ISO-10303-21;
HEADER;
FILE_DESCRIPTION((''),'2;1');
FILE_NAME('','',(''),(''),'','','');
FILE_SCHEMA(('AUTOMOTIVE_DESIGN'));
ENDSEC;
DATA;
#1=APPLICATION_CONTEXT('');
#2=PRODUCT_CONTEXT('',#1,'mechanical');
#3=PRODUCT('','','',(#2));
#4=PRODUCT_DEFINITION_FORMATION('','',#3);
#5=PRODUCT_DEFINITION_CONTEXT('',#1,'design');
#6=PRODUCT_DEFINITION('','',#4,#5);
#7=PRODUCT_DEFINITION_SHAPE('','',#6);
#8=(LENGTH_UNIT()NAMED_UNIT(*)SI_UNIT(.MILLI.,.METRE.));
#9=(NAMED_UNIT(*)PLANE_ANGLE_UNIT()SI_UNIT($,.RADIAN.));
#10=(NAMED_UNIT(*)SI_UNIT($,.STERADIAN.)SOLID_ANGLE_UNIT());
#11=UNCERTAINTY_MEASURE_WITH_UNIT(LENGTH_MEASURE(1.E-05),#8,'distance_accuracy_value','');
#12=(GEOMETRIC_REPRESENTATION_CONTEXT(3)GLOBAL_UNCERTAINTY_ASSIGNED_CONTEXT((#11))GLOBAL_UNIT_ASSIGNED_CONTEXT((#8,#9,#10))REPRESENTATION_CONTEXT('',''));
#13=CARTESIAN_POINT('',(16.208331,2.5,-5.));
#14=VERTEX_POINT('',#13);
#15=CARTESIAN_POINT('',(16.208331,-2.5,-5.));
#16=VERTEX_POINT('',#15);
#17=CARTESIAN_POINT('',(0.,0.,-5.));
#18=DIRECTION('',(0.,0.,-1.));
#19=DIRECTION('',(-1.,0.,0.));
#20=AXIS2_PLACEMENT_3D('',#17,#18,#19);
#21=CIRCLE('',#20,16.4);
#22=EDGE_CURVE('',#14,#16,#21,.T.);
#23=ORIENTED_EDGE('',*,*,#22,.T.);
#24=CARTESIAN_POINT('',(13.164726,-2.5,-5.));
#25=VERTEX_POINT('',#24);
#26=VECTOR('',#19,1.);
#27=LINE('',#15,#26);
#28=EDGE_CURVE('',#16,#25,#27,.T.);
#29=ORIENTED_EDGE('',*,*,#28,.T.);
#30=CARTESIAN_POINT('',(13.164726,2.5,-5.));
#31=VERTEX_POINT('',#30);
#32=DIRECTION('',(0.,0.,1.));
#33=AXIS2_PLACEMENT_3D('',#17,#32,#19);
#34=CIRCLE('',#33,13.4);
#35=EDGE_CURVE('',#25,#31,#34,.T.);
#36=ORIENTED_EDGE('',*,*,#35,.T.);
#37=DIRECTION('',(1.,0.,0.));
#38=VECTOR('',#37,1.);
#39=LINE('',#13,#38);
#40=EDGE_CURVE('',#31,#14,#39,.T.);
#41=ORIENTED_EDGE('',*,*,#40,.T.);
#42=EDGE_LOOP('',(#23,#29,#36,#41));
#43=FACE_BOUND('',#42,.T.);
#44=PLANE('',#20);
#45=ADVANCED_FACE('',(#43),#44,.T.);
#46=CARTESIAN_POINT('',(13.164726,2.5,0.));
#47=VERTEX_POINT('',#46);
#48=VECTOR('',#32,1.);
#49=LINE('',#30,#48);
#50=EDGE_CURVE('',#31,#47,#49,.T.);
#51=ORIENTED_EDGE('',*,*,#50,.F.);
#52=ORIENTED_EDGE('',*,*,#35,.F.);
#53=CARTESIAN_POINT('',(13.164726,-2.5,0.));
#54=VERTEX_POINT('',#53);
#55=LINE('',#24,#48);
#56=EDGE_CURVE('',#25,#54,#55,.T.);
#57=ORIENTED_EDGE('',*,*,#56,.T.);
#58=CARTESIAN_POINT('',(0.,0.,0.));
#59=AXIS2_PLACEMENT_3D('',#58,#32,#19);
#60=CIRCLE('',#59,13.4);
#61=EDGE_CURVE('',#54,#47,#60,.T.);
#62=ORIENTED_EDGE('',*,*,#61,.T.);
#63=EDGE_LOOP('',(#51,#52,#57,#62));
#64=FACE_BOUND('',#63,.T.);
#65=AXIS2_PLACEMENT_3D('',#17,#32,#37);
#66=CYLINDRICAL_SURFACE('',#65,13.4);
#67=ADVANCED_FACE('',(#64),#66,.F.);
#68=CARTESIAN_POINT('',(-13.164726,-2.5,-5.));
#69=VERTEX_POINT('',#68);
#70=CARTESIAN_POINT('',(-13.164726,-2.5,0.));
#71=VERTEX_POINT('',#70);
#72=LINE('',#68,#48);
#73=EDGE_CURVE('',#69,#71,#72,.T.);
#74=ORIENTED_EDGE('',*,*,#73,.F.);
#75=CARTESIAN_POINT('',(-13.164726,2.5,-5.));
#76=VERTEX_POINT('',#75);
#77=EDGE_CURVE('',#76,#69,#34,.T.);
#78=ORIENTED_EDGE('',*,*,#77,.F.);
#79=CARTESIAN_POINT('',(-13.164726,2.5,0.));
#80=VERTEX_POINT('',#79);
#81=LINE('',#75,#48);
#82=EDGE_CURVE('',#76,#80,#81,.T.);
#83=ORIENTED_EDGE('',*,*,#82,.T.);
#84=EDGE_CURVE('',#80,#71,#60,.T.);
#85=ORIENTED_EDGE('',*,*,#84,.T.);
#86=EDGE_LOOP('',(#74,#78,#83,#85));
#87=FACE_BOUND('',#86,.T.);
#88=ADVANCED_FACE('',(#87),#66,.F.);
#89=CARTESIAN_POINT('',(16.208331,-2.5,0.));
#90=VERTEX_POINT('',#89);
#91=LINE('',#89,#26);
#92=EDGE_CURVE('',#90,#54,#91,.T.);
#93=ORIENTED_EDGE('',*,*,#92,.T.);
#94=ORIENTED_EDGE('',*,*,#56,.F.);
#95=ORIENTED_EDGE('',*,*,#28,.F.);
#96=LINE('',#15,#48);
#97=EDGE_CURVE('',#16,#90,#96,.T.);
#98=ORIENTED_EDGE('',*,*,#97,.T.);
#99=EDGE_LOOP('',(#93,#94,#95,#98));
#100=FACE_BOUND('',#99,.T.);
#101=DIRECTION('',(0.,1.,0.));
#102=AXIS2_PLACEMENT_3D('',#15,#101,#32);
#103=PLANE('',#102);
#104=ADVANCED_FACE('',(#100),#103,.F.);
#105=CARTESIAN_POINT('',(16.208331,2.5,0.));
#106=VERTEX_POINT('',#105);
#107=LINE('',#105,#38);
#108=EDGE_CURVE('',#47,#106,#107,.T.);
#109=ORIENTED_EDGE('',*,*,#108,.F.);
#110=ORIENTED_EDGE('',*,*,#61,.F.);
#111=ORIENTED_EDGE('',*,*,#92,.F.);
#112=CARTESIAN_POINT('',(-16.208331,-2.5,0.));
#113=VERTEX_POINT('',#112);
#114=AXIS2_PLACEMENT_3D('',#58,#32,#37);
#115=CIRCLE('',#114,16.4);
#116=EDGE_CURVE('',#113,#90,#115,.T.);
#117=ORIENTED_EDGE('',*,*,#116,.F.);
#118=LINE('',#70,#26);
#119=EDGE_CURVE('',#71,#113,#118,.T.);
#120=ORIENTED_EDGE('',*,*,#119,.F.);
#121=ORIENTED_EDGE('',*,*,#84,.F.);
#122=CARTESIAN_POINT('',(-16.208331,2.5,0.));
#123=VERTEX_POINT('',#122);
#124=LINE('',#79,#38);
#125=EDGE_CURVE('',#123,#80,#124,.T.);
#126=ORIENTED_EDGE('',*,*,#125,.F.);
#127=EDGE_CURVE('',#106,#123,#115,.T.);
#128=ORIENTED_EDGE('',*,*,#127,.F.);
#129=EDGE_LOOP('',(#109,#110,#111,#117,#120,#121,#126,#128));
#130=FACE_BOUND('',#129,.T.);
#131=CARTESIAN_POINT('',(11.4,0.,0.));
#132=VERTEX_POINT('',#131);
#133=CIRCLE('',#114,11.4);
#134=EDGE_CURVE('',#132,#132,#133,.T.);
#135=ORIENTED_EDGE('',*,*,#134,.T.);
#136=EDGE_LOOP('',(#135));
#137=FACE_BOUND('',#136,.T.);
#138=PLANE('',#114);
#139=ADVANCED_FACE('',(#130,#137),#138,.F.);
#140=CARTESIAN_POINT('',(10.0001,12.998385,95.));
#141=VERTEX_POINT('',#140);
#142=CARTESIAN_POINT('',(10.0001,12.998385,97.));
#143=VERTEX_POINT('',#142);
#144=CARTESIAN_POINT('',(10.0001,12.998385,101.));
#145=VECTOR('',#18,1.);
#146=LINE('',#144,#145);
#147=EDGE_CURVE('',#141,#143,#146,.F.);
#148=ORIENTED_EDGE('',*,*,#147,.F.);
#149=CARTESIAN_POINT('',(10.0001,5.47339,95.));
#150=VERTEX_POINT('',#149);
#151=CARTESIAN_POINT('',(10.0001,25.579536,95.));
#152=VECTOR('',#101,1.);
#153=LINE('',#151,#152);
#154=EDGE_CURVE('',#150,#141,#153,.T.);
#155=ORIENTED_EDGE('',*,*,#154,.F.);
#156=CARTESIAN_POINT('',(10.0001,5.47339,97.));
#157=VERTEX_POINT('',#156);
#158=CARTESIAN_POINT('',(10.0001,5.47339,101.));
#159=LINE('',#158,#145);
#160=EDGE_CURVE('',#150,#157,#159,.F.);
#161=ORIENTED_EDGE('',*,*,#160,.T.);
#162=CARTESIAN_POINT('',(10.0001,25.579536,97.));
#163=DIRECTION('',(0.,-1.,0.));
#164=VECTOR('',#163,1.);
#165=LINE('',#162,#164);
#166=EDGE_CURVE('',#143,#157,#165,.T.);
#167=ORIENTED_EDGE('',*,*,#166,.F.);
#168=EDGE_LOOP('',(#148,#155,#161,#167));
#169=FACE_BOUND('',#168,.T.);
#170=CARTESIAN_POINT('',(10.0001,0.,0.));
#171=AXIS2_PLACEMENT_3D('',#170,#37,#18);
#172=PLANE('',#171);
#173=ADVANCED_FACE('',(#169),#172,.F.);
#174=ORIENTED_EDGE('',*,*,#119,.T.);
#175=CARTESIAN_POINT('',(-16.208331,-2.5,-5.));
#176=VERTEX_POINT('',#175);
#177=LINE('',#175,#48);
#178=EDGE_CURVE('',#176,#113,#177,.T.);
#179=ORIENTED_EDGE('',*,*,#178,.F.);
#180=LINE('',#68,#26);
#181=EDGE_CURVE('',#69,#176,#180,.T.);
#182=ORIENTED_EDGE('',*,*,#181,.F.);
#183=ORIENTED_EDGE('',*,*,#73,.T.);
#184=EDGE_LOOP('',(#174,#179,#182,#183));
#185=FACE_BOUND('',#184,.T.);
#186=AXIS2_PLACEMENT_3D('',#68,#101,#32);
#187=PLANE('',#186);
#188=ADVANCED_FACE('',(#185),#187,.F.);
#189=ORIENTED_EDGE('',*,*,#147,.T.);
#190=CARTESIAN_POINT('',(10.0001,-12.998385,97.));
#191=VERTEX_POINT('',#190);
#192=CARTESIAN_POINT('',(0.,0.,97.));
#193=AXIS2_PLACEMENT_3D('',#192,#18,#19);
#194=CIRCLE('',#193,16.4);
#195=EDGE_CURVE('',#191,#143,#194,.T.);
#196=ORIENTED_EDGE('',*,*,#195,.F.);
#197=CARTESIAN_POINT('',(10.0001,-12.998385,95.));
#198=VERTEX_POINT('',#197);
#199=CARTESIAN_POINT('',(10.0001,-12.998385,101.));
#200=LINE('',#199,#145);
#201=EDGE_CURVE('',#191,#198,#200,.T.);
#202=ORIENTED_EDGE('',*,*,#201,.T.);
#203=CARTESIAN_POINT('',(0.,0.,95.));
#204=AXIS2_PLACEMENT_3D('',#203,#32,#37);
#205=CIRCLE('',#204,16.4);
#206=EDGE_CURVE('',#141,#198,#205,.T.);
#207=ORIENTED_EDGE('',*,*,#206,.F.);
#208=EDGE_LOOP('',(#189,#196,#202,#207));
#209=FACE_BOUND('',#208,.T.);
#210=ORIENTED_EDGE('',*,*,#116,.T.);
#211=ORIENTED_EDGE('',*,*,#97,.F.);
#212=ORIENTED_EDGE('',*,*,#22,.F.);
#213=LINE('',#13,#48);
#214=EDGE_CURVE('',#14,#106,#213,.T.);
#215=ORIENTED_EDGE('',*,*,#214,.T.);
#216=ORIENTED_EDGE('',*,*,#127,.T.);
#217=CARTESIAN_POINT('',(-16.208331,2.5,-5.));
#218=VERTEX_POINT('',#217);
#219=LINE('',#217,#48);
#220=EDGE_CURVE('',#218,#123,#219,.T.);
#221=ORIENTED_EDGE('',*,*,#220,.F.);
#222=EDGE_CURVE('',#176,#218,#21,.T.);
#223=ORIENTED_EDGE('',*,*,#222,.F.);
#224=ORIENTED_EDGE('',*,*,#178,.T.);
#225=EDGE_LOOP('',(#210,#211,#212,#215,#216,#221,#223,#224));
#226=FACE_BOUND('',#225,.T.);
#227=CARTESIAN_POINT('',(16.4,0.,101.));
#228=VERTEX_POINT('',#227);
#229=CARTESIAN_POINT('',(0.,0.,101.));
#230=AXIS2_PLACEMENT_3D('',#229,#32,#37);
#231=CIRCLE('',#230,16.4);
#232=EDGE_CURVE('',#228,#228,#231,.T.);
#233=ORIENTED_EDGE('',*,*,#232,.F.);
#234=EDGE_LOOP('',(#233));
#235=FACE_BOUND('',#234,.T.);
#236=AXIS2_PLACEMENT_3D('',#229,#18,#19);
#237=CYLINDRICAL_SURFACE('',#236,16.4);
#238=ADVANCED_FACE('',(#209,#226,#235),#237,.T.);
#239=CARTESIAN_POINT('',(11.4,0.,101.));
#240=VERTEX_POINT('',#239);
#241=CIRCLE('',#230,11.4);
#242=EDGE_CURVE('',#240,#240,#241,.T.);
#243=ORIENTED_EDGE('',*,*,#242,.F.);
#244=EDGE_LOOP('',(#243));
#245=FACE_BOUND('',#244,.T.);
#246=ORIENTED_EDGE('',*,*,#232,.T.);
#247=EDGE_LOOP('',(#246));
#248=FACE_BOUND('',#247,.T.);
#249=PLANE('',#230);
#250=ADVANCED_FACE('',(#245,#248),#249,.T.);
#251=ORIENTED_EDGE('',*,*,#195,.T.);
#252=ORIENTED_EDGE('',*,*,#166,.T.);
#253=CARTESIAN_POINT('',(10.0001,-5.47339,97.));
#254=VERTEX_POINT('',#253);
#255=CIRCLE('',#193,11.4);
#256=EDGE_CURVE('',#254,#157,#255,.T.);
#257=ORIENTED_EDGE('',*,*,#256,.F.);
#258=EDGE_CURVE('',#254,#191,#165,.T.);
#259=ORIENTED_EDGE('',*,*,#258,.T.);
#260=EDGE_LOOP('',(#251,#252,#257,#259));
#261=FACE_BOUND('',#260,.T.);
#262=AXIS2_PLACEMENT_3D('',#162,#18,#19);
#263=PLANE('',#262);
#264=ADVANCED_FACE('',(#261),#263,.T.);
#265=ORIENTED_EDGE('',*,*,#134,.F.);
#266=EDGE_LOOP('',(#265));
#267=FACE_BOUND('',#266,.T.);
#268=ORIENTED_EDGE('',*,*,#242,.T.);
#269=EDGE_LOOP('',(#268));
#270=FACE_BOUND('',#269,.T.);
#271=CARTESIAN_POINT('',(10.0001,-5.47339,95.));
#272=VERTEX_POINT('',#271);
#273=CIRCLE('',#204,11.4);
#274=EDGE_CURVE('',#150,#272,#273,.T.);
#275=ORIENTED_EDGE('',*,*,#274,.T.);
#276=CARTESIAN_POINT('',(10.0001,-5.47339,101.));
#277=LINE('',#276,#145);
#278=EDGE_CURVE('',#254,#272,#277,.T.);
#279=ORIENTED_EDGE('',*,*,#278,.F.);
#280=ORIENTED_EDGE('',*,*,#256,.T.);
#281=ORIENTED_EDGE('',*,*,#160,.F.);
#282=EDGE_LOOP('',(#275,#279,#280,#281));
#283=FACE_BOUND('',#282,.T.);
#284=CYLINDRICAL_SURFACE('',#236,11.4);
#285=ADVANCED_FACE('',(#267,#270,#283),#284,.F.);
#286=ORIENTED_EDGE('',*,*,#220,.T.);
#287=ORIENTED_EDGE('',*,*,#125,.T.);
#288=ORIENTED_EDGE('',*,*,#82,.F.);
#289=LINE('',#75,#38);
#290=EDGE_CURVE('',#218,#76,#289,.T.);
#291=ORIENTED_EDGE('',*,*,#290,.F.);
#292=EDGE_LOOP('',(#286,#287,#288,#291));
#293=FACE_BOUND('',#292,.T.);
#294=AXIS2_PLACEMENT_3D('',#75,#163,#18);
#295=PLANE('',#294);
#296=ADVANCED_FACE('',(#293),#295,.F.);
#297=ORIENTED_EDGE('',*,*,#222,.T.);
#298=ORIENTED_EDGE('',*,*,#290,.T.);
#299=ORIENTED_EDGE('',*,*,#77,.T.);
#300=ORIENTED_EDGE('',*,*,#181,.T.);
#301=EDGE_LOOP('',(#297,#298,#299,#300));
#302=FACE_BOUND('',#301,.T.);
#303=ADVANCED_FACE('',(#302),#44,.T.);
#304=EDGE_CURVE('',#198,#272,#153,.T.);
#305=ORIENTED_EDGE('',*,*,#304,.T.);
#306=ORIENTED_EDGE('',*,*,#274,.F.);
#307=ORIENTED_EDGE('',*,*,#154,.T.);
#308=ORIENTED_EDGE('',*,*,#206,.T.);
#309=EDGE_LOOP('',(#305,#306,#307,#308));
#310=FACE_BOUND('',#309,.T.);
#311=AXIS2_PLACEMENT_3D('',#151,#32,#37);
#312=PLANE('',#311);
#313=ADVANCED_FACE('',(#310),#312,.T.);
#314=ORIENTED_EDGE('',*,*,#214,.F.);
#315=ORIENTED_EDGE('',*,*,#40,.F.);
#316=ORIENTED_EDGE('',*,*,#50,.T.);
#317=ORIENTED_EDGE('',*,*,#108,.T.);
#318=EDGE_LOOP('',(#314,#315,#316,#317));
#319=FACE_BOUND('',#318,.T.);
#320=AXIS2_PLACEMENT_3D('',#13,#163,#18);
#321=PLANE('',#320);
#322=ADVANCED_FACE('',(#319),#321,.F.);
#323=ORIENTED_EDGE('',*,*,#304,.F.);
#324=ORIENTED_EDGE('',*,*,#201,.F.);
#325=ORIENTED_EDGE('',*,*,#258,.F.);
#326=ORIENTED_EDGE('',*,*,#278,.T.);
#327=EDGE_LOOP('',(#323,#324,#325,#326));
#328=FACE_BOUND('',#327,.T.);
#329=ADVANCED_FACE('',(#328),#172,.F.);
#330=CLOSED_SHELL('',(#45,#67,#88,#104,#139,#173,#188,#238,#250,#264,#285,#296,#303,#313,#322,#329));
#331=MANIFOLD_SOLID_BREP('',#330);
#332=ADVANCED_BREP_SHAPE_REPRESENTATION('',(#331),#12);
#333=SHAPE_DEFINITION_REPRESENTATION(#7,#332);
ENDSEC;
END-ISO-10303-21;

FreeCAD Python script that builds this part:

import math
import FreeCAD as App
import Part
import Sketcher
Q = App.Units.Quantity

doc = App.newDocument("Part")
body = doc.addObject("PartDesign::Body", "Body")

sketch1 = doc.addObject("Sketcher::SketchObject", "Sketch")
body.addObject(sketch1)
sketch1.AttachmentSupport = (doc.XY_Plane, [""])
sketch1.MapMode = "FlatFace"
sketch1.addGeometry([
    Part.Circle(App.Vector(0, 0, 0), App.Vector(0, 0, 1), 16.4),
    Part.Circle(App.Vector(0, 0, 0), App.Vector(0, 0, 1), 11.4),
], False)
sketch1.addConstraint([
    Sketcher.Constraint("Coincident", 0, 3, -1, 1),
    Sketcher.Constraint("Coincident", 1, 3, -1, 1),
    Sketcher.Constraint("Diameter", 0, Q("32.8 mm")),
    Sketcher.Constraint("Diameter", 1, Q("22.8 mm")),
])
pad1 = doc.addObject("PartDesign::Pad", "Pad")
body.addObject(pad1)
pad1.Profile = sketch1
pad1.Length = 101

sketch2 = doc.addObject("Sketcher::SketchObject", "Sketch001")
body.addObject(sketch2)
sketch2.AttachmentSupport = (doc.YZ_Plane, [""])
sketch2.MapMode = "FlatFace"
sketch2.addGeometry([
    Part.LineSegment(App.Vector(25.579536, 97, 0), App.Vector(-23.918528, 97, 0)),
    Part.LineSegment(App.Vector(-23.918528, 97, 0), App.Vector(-23.918528, 95, 0)),
    Part.LineSegment(App.Vector(-23.918528, 95, 0), App.Vector(25.579536, 95, 0)),
    Part.LineSegment(App.Vector(25.579536, 95, 0), App.Vector(25.579536, 97, 0)),
], False)
sketch2.addConstraint([
    Sketcher.Constraint("Coincident", 0, 2, 1, 1),
    Sketcher.Constraint("Coincident", 1, 2, 2, 1),
    Sketcher.Constraint("Coincident", 2, 2, 3, 1),
    Sketcher.Constraint("Coincident", 3, 2, 0, 1),
    Sketcher.Constraint("Horizontal", 0),
    Sketcher.Constraint("Vertical", 1),
    Sketcher.Constraint("Horizontal", 2),
    Sketcher.Constraint("Vertical", 3),
    Sketcher.Constraint("DistanceY", 1, 2, 1, 1, Q("2 mm")),
    Sketcher.Constraint("DistanceY", -1, 1, 0, 2, Q("97 mm")),
    Sketcher.Constraint("DistanceX", 0, 2, 0, 1, Q("49.498064 mm")),
    Sketcher.Constraint("DistanceX", 0, 2, -1, 1, Q("23.918528 mm")),
])
pocket1 = doc.addObject("PartDesign::Pocket", "Pocket")
body.addObject(pocket1)
pocket1.Profile = sketch2
pocket1.Type = "TwoLengths"
pocket1.Length = 10.0001
pocket1.Length2 = 100
pocket1.Reversed = True

sketch3 = doc.addObject("Sketcher::SketchObject", "Sketch002")
body.addObject(sketch3)
sketch3.AttachmentSupport = (doc.XY_Plane, [""])
sketch3.MapMode = "FlatFace"
sketch3.AttachmentOffset = App.Placement(App.Vector(0, 0, -5), App.Rotation())
sketch3.addGeometry([
    Part.LineSegment(App.Vector(-16.208331, 2.5, 0), App.Vector(-13.164726, 2.5, 0)),
    Part.ArcOfCircle(Part.Circle(App.Vector(0, 0, 0), App.Vector(0, 0, 1), 13.4), math.radians(169.247485), math.radians(190.752515)),
    Part.LineSegment(App.Vector(-13.164726, -2.5, 0), App.Vector(-16.208331, -2.5, 0)),
    Part.ArcOfCircle(Part.Circle(App.Vector(0, 0, 0), App.Vector(0, 0, 1), 16.4), math.radians(171.231702), math.radians(188.768298)),
    Part.LineSegment(App.Vector(13.164726, 2.5, 0), App.Vector(16.208331, 2.5, 0)),
    Part.ArcOfCircle(Part.Circle(App.Vector(0, 0, 0), App.Vector(0, 0, 1), 16.4), math.radians(-8.768298), math.radians(8.768298)),
    Part.LineSegment(App.Vector(16.208331, -2.5, 0), App.Vector(13.164726, -2.5, 0)),
    Part.ArcOfCircle(Part.Circle(App.Vector(0, 0, 0), App.Vector(0, 0, 1), 13.4), math.radians(-10.752515), math.radians(10.752515)),
], False)
sketch3.addConstraint([
    Sketcher.Constraint("Coincident", 0, 2, 1, 1),
    Sketcher.Constraint("Coincident", 1, 2, 2, 1),
    Sketcher.Constraint("Coincident", 2, 2, 3, 2),
    Sketcher.Constraint("Coincident", 3, 1, 0, 1),
    Sketcher.Constraint("Coincident", 4, 2, 5, 2),
    Sketcher.Constraint("Coincident", 5, 1, 6, 1),
    Sketcher.Constraint("Coincident", 6, 2, 7, 1),
    Sketcher.Constraint("Coincident", 7, 2, 4, 1),
    Sketcher.Constraint("Horizontal", 0),
    Sketcher.Constraint("Horizontal", 2),
    Sketcher.Constraint("Horizontal", 4),
    Sketcher.Constraint("Horizontal", 6),
    Sketcher.Constraint("Coincident", 1, 3, -1, 1),
    Sketcher.Constraint("Coincident", 3, 3, -1, 1),
    Sketcher.Constraint("Coincident", 5, 3, -1, 1),
    Sketcher.Constraint("Coincident", 7, 3, -1, 1),
    Sketcher.Constraint("Equal", 3, 5),
    Sketcher.Constraint("Equal", 1, 7),
    Sketcher.Constraint("Horizontal", 3, 1, 4, 2),
    Sketcher.Constraint("Horizontal", 2, 2, 5, 1),
    Sketcher.Constraint("Vertical", 0, 2, 1, 2),
    Sketcher.Constraint("Radius", 1, Q("13.4 mm")),
    Sketcher.Constraint("Radius", 3, Q("16.4 mm")),
    Sketcher.Constraint("DistanceY", 1, 2, 0, 2, Q("5 mm")),
])
pad2 = doc.addObject("PartDesign::Pad", "Pad001")
body.addObject(pad2)
pad2.Profile = sketch3
pad2.Length = 5

doc.recompute()
